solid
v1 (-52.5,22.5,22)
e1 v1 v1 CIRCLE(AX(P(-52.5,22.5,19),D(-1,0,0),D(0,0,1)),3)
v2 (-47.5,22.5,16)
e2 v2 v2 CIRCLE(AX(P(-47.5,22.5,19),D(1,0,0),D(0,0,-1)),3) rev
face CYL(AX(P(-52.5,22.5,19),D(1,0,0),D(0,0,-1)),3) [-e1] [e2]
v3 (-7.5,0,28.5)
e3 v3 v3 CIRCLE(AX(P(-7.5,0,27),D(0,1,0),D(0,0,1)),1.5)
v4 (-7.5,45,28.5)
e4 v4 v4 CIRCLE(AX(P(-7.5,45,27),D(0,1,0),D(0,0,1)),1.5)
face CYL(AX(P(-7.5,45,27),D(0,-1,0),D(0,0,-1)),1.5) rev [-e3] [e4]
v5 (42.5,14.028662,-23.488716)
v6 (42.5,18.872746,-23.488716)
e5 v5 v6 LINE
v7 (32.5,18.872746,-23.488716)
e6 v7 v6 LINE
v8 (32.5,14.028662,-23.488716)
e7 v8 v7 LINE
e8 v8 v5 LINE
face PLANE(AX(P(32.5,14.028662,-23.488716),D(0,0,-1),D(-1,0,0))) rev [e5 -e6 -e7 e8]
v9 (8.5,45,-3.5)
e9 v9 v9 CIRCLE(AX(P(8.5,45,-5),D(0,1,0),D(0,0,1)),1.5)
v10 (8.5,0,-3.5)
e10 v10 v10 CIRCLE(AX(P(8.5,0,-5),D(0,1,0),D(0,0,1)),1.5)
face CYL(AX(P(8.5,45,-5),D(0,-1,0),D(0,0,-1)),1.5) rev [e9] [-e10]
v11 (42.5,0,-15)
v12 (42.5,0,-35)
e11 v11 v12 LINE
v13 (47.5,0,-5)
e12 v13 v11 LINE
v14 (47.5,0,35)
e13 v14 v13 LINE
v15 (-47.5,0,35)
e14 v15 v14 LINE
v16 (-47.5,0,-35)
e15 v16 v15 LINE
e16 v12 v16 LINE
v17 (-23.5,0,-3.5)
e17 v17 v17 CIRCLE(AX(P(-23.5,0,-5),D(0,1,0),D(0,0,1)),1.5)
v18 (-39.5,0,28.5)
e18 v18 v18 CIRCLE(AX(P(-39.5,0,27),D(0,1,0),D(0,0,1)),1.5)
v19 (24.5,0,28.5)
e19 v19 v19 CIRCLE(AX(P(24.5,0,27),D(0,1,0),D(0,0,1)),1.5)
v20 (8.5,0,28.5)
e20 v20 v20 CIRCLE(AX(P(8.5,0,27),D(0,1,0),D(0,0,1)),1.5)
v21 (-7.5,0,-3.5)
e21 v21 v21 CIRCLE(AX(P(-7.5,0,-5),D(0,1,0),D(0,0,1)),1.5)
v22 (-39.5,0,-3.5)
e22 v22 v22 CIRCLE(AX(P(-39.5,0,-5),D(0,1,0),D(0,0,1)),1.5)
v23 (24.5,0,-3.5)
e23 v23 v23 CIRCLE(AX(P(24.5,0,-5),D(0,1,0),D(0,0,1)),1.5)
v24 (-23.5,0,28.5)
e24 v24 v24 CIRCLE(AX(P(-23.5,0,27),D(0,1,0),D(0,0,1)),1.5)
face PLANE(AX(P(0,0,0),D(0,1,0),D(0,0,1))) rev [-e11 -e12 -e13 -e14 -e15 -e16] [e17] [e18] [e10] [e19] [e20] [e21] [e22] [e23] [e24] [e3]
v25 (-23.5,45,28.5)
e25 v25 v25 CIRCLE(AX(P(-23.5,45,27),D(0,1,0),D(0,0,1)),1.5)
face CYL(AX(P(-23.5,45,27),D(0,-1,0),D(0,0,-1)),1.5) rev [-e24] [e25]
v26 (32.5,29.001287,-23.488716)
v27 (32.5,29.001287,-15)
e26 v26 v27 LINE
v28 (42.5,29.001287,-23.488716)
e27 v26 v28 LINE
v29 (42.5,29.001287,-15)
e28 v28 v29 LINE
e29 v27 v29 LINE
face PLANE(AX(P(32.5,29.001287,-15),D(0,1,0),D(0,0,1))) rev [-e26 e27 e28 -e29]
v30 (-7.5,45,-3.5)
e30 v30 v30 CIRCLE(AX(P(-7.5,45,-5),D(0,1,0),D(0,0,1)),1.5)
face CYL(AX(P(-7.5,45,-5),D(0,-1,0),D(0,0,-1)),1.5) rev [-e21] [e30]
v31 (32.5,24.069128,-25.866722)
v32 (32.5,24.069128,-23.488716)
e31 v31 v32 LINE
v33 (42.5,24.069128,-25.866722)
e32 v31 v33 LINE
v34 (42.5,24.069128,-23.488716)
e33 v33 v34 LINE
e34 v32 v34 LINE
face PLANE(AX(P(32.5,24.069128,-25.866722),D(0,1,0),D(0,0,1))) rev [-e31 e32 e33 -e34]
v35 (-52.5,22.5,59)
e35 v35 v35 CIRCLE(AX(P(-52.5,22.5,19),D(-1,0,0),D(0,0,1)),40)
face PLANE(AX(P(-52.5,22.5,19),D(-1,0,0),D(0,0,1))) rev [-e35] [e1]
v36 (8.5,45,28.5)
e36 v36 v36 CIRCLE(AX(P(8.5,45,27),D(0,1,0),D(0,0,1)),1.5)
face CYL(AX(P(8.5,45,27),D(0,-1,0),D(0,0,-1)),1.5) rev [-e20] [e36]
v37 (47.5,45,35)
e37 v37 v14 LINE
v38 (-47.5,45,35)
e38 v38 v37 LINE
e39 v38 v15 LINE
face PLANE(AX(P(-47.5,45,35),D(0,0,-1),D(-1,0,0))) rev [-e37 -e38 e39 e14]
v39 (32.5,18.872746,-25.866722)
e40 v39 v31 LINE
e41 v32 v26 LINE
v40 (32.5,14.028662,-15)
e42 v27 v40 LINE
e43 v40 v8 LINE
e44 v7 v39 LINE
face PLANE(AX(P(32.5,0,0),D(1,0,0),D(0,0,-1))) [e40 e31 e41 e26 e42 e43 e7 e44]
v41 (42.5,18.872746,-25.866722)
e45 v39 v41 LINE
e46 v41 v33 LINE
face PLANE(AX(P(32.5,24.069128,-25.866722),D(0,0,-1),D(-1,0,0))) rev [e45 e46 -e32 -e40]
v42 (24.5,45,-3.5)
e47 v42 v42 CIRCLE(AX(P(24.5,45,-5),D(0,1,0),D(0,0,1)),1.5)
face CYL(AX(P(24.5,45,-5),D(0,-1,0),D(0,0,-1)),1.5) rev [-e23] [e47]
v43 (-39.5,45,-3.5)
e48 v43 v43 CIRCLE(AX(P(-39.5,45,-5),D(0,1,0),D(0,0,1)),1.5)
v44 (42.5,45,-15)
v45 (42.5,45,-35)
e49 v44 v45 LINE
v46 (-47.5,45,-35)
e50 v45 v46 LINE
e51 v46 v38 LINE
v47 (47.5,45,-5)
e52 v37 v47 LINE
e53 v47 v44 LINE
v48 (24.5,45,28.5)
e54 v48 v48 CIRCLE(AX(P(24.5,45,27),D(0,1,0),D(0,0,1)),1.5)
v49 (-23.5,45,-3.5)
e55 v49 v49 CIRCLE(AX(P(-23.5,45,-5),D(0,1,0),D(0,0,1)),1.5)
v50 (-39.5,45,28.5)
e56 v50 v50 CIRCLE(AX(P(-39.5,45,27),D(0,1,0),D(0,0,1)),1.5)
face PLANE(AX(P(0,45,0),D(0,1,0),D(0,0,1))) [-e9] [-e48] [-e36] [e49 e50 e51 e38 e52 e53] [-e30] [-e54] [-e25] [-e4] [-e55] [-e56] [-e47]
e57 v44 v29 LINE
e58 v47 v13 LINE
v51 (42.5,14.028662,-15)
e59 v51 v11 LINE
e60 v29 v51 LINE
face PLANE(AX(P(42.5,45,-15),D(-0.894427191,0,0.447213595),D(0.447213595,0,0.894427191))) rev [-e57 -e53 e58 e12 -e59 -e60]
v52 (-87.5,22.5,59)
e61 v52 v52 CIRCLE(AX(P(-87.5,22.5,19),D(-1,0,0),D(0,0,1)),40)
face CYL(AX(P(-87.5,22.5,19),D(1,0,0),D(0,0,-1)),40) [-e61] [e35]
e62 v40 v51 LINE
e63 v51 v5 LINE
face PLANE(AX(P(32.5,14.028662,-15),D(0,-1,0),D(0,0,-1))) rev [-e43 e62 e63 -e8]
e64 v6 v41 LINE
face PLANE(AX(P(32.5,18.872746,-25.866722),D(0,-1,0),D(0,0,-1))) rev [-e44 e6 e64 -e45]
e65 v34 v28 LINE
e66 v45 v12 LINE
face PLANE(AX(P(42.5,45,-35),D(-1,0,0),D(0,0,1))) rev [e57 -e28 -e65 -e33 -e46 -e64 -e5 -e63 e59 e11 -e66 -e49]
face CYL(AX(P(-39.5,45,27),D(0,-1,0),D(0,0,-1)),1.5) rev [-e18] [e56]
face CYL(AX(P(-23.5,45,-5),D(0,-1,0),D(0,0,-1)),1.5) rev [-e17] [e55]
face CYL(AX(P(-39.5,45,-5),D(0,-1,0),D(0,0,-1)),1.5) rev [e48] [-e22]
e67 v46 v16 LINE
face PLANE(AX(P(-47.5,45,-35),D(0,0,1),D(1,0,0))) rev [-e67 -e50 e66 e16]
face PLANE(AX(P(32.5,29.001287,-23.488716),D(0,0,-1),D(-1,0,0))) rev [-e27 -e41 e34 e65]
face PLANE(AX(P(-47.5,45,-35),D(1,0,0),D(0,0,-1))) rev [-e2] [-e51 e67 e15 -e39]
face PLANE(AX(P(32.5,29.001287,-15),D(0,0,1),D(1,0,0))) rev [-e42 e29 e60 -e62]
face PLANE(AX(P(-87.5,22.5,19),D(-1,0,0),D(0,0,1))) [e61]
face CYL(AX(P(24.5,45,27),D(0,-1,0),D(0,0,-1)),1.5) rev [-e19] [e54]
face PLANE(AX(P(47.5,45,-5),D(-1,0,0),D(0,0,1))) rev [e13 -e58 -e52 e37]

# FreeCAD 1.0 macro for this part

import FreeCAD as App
import Part
import Sketcher
Q = App.Units.Quantity

doc = App.newDocument("Part")
body = doc.addObject("PartDesign::Body", "Body")

# Sketch on XZ plane
sketch1 = body.newObject("Sketcher::SketchObject", "Sketch")
sketch1.AttachmentSupport = (doc.getObject("XZ_Plane"), [""])
sketch1.MapMode = "FlatFace"
sketch1.addGeometry(Part.LineSegment(App.Vector(42.5, -15, 0), App.Vector(42.5, -35, 0)), False)
sketch1.addGeometry(Part.LineSegment(App.Vector(42.5, -35, 0), App.Vector(-47.5, -35, 0)), False)
sketch1.addGeometry(Part.LineSegment(App.Vector(-47.5, -35, 0), App.Vector(-47.5, 35, 0)), False)
sketch1.addGeometry(Part.LineSegment(App.Vector(-47.5, 35, 0), App.Vector(47.5, 35, 0)), False)
sketch1.addGeometry(Part.LineSegment(App.Vector(47.5, 35, 0), App.Vector(47.5, -5, 0)), False)
sketch1.addGeometry(Part.LineSegment(App.Vector(47.5, -5, 0), App.Vector(42.5, -15, 0)), False)
sketch1.addGeometry(Part.Circle(App.Vector(24.5, 27, 0), App.Vector(0, 0, 1), 1.5), False)
sketch1.addGeometry(Part.Circle(App.Vector(8.5, 27, 0), App.Vector(0, 0, 1), 1.5), False)
sketch1.addGeometry(Part.Circle(App.Vector(-7.5, 27, 0), App.Vector(0, 0, 1), 1.5), False)
sketch1.addGeometry(Part.Circle(App.Vector(-23.5, 27, 0), App.Vector(0, 0, 1), 1.5), False)
sketch1.addGeometry(Part.Circle(App.Vector(-39.5, 27, 0), App.Vector(0, 0, 1), 1.5), False)
sketch1.addGeometry(Part.Circle(App.Vector(24.5, -5, 0), App.Vector(0, 0, 1), 1.5), False)
sketch1.addGeometry(Part.Circle(App.Vector(8.5, -5, 0), App.Vector(0, 0, 1), 1.5), False)
sketch1.addGeometry(Part.Circle(App.Vector(-7.5, -5, 0), App.Vector(0, 0, 1), 1.5), False)
sketch1.addGeometry(Part.Circle(App.Vector(-23.5, -5, 0), App.Vector(0, 0, 1), 1.5), False)
sketch1.addGeometry(Part.Circle(App.Vector(-39.5, -5, 0), App.Vector(0, 0, 1), 1.5), False)
sketch1.addConstraint(Sketcher.Constraint("Coincident", 0, 2, 1, 1))
sketch1.addConstraint(Sketcher.Constraint("Coincident", 1, 2, 2, 1))
sketch1.addConstraint(Sketcher.Constraint("Coincident", 2, 2, 3, 1))
sketch1.addConstraint(Sketcher.Constraint("Coincident", 3, 2, 4, 1))
sketch1.addConstraint(Sketcher.Constraint("Coincident", 4, 2, 5, 1))
sketch1.addConstraint(Sketcher.Constraint("Coincident", 5, 2, 0, 1))
sketch1.addConstraint(Sketcher.Constraint("Vertical", 0))
sketch1.addConstraint(Sketcher.Constraint("Horizontal", 1))
sketch1.addConstraint(Sketcher.Constraint("Vertical", 2))
sketch1.addConstraint(Sketcher.Constraint("Horizontal", 3))
sketch1.addConstraint(Sketcher.Constraint("Vertical", 4))
sketch1.addConstraint(Sketcher.Constraint("Equal", 6, 7))
sketch1.addConstraint(Sketcher.Constraint("Equal", 7, 8))
sketch1.addConstraint(Sketcher.Constraint("Equal", 8, 9))
sketch1.addConstraint(Sketcher.Constraint("Equal", 9, 10))
sketch1.addConstraint(Sketcher.Constraint("Equal", 10, 11))
sketch1.addConstraint(Sketcher.Constraint("Equal", 11, 12))
sketch1.addConstraint(Sketcher.Constraint("Equal", 12, 13))
sketch1.addConstraint(Sketcher.Constraint("Equal", 13, 14))
sketch1.addConstraint(Sketcher.Constraint("Equal", 14, 15))
sketch1.addConstraint(Sketcher.Constraint("Symmetric", 1, 2, 3, 2, -1, 1))
sketch1.addConstraint(Sketcher.Constraint("Horizontal", 6, 3, 7, 3))
sketch1.addConstraint(Sketcher.Constraint("Horizontal", 7, 3, 8, 3))
sketch1.addConstraint(Sketcher.Constraint("Horizontal", 8, 3, 9, 3))
sketch1.addConstraint(Sketcher.Constraint("Horizontal", 9, 3, 10, 3))
sketch1.addConstraint(Sketcher.Constraint("Horizontal", 11, 3, 12, 3))
sketch1.addConstraint(Sketcher.Constraint("Horizontal", 12, 3, 13, 3))
sketch1.addConstraint(Sketcher.Constraint("Horizontal", 13, 3, 14, 3))
sketch1.addConstraint(Sketcher.Constraint("Horizontal", 14, 3, 15, 3))
sketch1.addConstraint(Sketcher.Constraint("Horizontal", 15, 3, 4, 2))
sketch1.addConstraint(Sketcher.Constraint("Vertical", 6, 3, 11, 3))
sketch1.addConstraint(Sketcher.Constraint("Vertical", 7, 3, 12, 3))
sketch1.addConstraint(Sketcher.Constraint("Vertical", 8, 3, 13, 3))
sketch1.addConstraint(Sketcher.Constraint("Vertical", 9, 3, 14, 3))
sketch1.addConstraint(Sketcher.Constraint("Vertical", 10, 3, 15, 3))
sketch1.addConstraint(Sketcher.Constraint("Diameter", 6, Q("3 mm")))
sketch1.addConstraint(Sketcher.Constraint("DistanceX", 1, 2, 1, 1, Q("90 mm")))
sketch1.addConstraint(Sketcher.Constraint("DistanceX", 3, 1, 3, 2, Q("95 mm")))
sketch1.addConstraint(Sketcher.Constraint("DistanceY", 0, 2, 0, 1, Q("20 mm")))
sketch1.addConstraint(Sketcher.Constraint("DistanceY", 2, 1, 2, 2, Q("70 mm")))
sketch1.addConstraint(Sketcher.Constraint("DistanceY", 4, 2, 4, 1, Q("40 mm")))
sketch1.addConstraint(Sketcher.Constraint("DistanceY", -1, 1, 6, 3, Q("27 mm")))
sketch1.addConstraint(Sketcher.Constraint("DistanceX", 7, 3, 6, 3, Q("16 mm")))
sketch1.addConstraint(Sketcher.Constraint("DistanceX", 8, 3, 7, 3, Q("16 mm")))
sketch1.addConstraint(Sketcher.Constraint("DistanceX", 9, 3, 8, 3, Q("16 mm")))
sketch1.addConstraint(Sketcher.Constraint("DistanceX", 10, 3, 9, 3, Q("16 mm")))
sketch1.addConstraint(Sketcher.Constraint("DistanceX", 11, 3, 0, 2, Q("18 mm")))
pad1 = body.newObject("PartDesign::Pad", "Pad")
pad1.Profile = sketch1
pad1.Length = 45
pad1.Reversed = True

# Sketch on YZ plane
sketch2 = body.newObject("Sketcher::SketchObject", "Sketch001")
sketch2.AttachmentSupport = (doc.getObject("YZ_Plane"), [""])
sketch2.MapMode = "FlatFace"
sketch2.AttachmentOffset = App.Placement(App.Vector(0, 0, 42.5), App.Rotation())
sketch2.addGeometry(Part.LineSegment(App.Vector(29, -23.5, 0), App.Vector(29, -15, 0)), False)
sketch2.addGeometry(Part.LineSegment(App.Vector(29, -15, 0), App.Vector(14, -15, 0)), False)
sketch2.addGeometry(Part.LineSegment(App.Vector(14, -15, 0), App.Vector(14, -23.5, 0)), False)
sketch2.addGeometry(Part.LineSegment(App.Vector(14, -23.5, 0), App.Vector(18.9, -23.5, 0)), False)
sketch2.addGeometry(Part.LineSegment(App.Vector(18.9, -23.5, 0), App.Vector(18.9, -25.9, 0)), False)
sketch2.addGeometry(Part.LineSegment(App.Vector(18.9, -25.9, 0), App.Vector(24.1, -25.9, 0)), False)
sketch2.addGeometry(Part.LineSegment(App.Vector(24.1, -25.9, 0), App.Vector(24.1, -23.5, 0)), False)
sketch2.addGeometry(Part.LineSegment(App.Vector(24.1, -23.5, 0), App.Vector(29, -23.5, 0)), False)
sketch2.addConstraint(Sketcher.Constraint("Coincident", 0, 2, 1, 1))
sketch2.addConstraint(Sketcher.Constraint("Coincident", 1, 2, 2, 1))
sketch2.addConstraint(Sketcher.Constraint("Coincident", 2, 2, 3, 1))
sketch2.addConstraint(Sketcher.Constraint("Coincident", 3, 2, 4, 1))
sketch2.addConstraint(Sketcher.Constraint("Coincident", 4, 2, 5, 1))
sketch2.addConstraint(Sketcher.Constraint("Coincident", 5, 2, 6, 1))
sketch2.addConstraint(Sketcher.Constraint("Coincident", 6, 2, 7, 1))
sketch2.addConstraint(Sketcher.Constraint("Coincident", 7, 2, 0, 1))
sketch2.addConstraint(Sketcher.Constraint("Vertical", 0))
sketch2.addConstraint(Sketcher.Constraint("Horizontal", 1))
sketch2.addConstraint(Sketcher.Constraint("Vertical", 2))
sketch2.addConstraint(Sketcher.Constraint("Horizontal", 3))
sketch2.addConstraint(Sketcher.Constraint("Vertical", 4))
sketch2.addConstraint(Sketcher.Constraint("Horizontal", 5))
sketch2.addConstraint(Sketcher.Constraint("Vertical", 6))
sketch2.addConstraint(Sketcher.Constraint("Horizontal", 7))
sketch2.addConstraint(Sketcher.Constraint("Horizontal", 3, 2, 6, 2))
sketch2.addConstraint(Sketcher.Constraint("DistanceY", 0, 2, -1, 1, Q("15 mm")))
sketch2.addConstraint(Sketcher.Constraint("DistanceX", 5, 1, 5, 2, Q("5.196382 mm")))
sketch2.addConstraint(Sketcher.Constraint("DistanceX", 7, 1, 7, 2, Q("4.932159 mm")))
sketch2.addConstraint(Sketcher.Constraint("DistanceX", 1, 2, 1, 1, Q("14.972625 mm")))
sketch2.addConstraint(Sketcher.Constraint("DistanceY", 0, 1, 0, 2, Q("8.488716 mm")))
sketch2.addConstraint(Sketcher.Constraint("DistanceY", 4, 2, 4, 1, Q("2.378005 mm")))
sketch2.addConstraint(Sketcher.Constraint("DistanceX", -1, 1, 1, 2, Q("14.028662 mm")))
pocket1 = body.newObject("PartDesign::Pocket", "Pocket")
pocket1.Profile = sketch2
pocket1.Length = 10

# Sketch on YZ plane
sketch3 = body.newObject("Sketcher::SketchObject", "Sketch002")
sketch3.AttachmentSupport = (doc.getObject("YZ_Plane"), [""])
sketch3.MapMode = "FlatFace"
sketch3.AttachmentOffset = App.Placement(App.Vector(0, 0, -47.5), App.Rotation())
sketch3.addGeometry(Part.Circle(App.Vector(22.5, 19, 0), App.Vector(0, 0, 1), 3), False)
sketch3.addConstraint(Sketcher.Constraint("Diameter", 0, Q("6 mm")))
sketch3.addConstraint(Sketcher.Constraint("DistanceY", -1, 1, 0, 3, Q("19 mm")))
sketch3.addConstraint(Sketcher.Constraint("DistanceX", -1, 1, 0, 3, Q("22.5 mm")))
pad2 = body.newObject("PartDesign::Pad", "Pad001")
pad2.Profile = sketch3
pad2.Length = 5
pad2.Reversed = True

# Sketch on YZ plane
sketch4 = body.newObject("Sketcher::SketchObject", "Sketch003")
sketch4.AttachmentSupport = (doc.getObject("YZ_Plane"), [""])
sketch4.MapMode = "FlatFace"
sketch4.AttachmentOffset = App.Placement(App.Vector(0, 0, -52.5), App.Rotation())
sketch4.addGeometry(Part.Circle(App.Vector(22, 19, 0), App.Vector(0, 0, 1), 40), False)
sketch4.addConstraint(Sketcher.Constraint("Diameter", 0, Q("80 mm")))
sketch4.addConstraint(Sketcher.Constraint("DistanceY", -1, 1, 0, 3, Q("19 mm")))
sketch4.addConstraint(Sketcher.Constraint("DistanceX", -1, 1, 0, 3, Q("22.5 mm")))
pad3 = body.newObject("PartDesign::Pad", "Pad002")
pad3.Profile = sketch4
pad3.Length = 35
pad3.Reversed = True

doc.recompute()
